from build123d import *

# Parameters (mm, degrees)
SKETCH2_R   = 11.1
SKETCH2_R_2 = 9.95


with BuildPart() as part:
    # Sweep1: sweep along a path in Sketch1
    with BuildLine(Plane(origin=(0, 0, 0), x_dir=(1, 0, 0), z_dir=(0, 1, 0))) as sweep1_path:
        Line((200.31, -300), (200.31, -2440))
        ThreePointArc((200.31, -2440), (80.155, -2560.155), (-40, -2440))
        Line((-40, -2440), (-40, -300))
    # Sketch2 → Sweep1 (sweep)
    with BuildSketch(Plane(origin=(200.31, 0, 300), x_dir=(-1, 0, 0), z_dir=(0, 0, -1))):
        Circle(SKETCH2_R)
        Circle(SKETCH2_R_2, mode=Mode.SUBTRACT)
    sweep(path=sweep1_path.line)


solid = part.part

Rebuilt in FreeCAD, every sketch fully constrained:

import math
import FreeCAD as App
import Part
import Sketcher
from FreeCAD import Vector

doc = App.newDocument("Part")
body = doc.addObject("PartDesign::Body", "Body")

# Sketch on XY plane
sketch1 = body.newObject("Sketcher::SketchObject", "Sketch")
sketch1.AttachmentSupport = (doc.getObject("XY_Plane"), [""])
sketch1.MapMode = "FlatFace"
sketch1.AttachmentOffset = App.Placement(Vector(0, 0, 300), App.Rotation())
sketch1.addGeometry([
    Part.Circle(Vector(200, 0, 0), Vector(0, 0, 1), 11),
    Part.Circle(Vector(200, 0, 0), Vector(0, 0, 1), 10),
], False)
sketch1.addConstraint([
    Sketcher.Constraint("Coincident", 1, 3, 0, 3),
    Sketcher.Constraint("PointOnObject", 0, 3, -1),
    Sketcher.Constraint("Diameter", 0, 22.2),
    Sketcher.Constraint("Diameter", 1, 19.9),
    Sketcher.Constraint("DistanceX", -1, 1, 0, 3, 200.31),
])

# Sketch on XZ plane
sketch2 = body.newObject("Sketcher::SketchObject", "Sketch001")
sketch2.AttachmentSupport = (doc.getObject("XZ_Plane"), [""])
sketch2.MapMode = "FlatFace"
sketch2.addGeometry([
    Part.LineSegment(Vector(200, 300, 0), Vector(200, 2440, 0)),
    Part.ArcOfCircle(Part.Circle(Vector(80, 2440, 0), Vector(0, 0, 1), 120), math.radians(0), math.radians(180)),
    Part.LineSegment(Vector(-40, 2440, 0), Vector(-40, 300, 0)),
], False)
sketch2.addConstraint([
    Sketcher.Constraint("Tangent", 0, 2, 1, 1),
    Sketcher.Constraint("Tangent", 1, 2, 2, 1),
    Sketcher.Constraint("Vertical", 0),
    Sketcher.Constraint("Vertical", 2),
    Sketcher.Constraint("Horizontal", 0, 1, 2, 2),
    Sketcher.Constraint("DistanceY", 0, 1, 0, 2, 2140.0),
    Sketcher.Constraint("DistanceY", -1, 1, 1, 3, 2440.0),
    Sketcher.Constraint("DistanceX", 1, 2, -1, 1, 40.0),
    Sketcher.Constraint("Radius", 1, 120.155),
])
doc.recompute()

additivepipe = body.newObject("PartDesign::AdditivePipe", "AdditivePipe")
additivepipe.Profile = sketch1
additivepipe.Spine = (sketch2, ["Edge1", "Edge2", "Edge3"])

doc.recompute()
